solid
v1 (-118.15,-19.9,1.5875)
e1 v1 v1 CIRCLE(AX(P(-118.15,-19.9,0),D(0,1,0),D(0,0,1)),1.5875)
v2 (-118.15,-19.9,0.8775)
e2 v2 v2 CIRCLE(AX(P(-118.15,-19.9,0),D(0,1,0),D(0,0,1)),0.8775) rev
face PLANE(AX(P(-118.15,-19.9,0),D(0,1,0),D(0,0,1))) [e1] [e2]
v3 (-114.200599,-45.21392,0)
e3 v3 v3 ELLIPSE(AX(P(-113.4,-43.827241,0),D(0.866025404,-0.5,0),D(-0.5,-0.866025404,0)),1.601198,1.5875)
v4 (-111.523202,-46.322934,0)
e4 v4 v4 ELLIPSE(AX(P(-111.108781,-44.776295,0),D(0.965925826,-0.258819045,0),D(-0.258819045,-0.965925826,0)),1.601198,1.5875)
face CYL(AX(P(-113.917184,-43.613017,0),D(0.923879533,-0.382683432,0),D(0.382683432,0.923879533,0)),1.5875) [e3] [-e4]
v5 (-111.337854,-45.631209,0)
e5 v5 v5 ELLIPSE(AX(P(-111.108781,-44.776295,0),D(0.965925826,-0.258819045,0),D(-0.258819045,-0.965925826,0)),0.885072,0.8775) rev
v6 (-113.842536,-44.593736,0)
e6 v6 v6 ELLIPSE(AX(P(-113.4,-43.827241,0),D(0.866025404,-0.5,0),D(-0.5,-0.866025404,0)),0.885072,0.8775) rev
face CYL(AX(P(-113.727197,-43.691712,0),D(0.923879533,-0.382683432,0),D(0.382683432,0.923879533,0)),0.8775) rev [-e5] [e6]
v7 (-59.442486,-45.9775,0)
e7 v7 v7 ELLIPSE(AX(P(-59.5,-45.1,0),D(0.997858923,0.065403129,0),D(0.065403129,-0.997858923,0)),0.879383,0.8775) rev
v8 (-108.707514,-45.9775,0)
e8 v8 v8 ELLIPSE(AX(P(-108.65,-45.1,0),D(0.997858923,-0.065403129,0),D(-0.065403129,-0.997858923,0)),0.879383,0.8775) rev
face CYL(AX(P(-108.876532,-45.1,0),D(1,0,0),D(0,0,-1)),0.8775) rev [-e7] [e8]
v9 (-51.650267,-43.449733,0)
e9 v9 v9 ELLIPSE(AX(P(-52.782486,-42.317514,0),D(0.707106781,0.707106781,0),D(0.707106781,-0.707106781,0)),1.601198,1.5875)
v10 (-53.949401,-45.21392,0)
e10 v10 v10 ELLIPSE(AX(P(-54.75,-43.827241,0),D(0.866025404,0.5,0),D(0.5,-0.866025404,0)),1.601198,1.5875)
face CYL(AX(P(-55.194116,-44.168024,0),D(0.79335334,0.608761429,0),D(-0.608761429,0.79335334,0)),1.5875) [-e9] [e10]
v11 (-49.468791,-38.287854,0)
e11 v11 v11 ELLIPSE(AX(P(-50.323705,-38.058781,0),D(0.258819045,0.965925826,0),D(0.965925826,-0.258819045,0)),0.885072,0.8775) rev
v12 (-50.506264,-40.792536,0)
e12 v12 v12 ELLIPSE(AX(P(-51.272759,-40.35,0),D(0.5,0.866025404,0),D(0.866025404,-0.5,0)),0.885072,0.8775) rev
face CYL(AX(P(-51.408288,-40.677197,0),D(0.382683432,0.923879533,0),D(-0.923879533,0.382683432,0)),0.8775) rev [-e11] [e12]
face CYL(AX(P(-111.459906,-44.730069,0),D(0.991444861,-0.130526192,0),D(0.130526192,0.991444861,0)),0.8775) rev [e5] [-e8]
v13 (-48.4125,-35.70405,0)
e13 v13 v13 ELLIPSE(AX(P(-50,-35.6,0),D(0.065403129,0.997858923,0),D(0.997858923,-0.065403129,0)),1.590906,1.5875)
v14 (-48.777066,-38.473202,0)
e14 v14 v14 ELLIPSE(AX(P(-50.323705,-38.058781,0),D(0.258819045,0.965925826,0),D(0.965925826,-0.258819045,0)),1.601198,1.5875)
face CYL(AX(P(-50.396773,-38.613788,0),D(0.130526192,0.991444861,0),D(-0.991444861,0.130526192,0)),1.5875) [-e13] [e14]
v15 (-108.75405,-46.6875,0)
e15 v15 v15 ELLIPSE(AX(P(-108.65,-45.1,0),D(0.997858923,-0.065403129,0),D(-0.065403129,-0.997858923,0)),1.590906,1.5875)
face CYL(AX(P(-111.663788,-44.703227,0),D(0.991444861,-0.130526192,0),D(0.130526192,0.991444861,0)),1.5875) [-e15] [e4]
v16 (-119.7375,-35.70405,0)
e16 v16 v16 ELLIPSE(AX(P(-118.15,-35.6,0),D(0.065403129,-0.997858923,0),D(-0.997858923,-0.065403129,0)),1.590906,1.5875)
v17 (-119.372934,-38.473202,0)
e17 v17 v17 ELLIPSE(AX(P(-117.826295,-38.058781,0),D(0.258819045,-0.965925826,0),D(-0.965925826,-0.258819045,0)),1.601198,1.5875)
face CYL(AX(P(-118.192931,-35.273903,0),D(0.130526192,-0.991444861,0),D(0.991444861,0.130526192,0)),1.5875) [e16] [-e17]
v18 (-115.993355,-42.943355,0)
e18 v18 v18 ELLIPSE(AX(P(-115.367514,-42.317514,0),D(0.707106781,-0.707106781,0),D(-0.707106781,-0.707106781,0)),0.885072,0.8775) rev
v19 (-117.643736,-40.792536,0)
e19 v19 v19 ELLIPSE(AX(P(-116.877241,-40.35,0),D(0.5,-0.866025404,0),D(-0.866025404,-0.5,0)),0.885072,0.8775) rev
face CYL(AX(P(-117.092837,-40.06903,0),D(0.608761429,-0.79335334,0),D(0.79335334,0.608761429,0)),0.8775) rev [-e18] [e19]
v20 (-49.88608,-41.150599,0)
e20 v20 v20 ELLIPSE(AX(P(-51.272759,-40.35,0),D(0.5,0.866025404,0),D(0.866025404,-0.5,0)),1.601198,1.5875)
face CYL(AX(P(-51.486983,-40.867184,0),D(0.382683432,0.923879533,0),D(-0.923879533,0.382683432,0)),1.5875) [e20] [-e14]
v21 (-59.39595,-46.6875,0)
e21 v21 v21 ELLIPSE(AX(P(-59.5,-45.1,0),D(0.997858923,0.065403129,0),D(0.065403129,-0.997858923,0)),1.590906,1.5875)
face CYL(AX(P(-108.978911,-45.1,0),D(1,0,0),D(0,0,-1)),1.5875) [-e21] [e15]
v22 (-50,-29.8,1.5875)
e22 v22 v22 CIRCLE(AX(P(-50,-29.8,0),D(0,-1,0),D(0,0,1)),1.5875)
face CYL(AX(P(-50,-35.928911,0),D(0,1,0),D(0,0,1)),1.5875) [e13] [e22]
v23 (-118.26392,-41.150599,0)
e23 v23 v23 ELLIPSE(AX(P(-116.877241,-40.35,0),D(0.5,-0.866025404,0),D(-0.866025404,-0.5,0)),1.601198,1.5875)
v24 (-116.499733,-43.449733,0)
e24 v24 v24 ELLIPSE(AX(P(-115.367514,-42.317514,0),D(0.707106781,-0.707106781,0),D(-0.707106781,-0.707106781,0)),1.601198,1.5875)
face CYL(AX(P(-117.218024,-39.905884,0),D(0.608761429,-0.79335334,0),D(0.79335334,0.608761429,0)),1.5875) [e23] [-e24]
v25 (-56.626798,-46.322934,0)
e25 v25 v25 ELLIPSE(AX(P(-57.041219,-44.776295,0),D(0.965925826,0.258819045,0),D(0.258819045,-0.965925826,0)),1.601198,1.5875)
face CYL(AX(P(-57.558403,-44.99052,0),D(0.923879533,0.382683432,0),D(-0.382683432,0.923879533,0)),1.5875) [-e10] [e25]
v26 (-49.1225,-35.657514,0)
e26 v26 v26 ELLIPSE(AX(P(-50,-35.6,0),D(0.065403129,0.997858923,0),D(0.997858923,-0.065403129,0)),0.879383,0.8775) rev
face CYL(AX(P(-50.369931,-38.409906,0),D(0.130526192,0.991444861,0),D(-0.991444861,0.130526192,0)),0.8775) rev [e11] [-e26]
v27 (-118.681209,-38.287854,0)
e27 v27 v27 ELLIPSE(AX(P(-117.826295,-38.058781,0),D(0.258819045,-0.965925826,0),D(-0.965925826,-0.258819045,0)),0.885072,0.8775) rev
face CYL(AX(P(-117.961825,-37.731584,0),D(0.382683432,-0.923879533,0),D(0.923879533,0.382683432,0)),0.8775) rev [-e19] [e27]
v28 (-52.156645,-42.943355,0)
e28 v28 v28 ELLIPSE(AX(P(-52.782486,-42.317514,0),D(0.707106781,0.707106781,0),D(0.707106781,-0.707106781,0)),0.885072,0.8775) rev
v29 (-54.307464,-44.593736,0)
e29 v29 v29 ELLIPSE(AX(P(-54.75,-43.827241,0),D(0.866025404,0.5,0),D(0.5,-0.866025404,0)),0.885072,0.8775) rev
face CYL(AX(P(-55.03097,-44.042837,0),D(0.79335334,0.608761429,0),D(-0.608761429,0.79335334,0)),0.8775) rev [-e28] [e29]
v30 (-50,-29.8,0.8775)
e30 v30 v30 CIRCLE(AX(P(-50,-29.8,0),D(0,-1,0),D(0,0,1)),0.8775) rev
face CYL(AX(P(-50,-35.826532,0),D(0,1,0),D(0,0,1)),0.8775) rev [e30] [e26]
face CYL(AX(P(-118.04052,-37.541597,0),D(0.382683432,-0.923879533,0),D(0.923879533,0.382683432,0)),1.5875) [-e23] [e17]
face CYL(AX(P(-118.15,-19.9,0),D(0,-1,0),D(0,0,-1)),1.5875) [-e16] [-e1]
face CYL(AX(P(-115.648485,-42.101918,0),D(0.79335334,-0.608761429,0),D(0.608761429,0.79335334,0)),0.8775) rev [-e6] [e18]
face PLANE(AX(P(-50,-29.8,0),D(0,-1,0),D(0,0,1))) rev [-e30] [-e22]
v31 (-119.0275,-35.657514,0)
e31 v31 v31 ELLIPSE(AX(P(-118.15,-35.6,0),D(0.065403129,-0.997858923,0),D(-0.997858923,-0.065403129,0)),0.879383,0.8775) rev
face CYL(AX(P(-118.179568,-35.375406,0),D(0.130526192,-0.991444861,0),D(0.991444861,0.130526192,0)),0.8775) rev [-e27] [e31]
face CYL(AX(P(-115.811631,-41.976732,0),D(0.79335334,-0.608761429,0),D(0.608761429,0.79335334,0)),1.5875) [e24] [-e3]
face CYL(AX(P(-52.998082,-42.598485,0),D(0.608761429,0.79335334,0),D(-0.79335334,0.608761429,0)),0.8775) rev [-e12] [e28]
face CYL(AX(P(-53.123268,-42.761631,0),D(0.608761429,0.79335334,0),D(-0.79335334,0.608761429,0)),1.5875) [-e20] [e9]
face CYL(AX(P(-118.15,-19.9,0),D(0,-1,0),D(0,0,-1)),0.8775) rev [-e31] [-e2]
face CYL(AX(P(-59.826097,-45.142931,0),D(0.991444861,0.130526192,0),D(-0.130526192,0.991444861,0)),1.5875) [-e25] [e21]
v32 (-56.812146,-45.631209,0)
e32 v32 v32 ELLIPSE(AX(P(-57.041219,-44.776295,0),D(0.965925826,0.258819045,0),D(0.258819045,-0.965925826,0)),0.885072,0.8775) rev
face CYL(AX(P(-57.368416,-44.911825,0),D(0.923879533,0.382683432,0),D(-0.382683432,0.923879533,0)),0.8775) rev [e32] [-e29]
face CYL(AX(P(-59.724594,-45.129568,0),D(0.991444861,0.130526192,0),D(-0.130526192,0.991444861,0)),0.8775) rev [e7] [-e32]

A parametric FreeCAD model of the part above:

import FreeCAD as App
import Part
import Sketcher
from FreeCAD import Vector
Q = App.Units.Quantity

doc = App.newDocument("Part")
body = doc.addObject("PartDesign::Body", "Body")

# Sketch on XZ plane
sketch1 = doc.addObject("Sketcher::SketchObject", "Sketch")
body.addObject(sketch1)
sketch1.AttachmentSupport = (doc.XZ_Plane, [""])
sketch1.MapMode = "FlatFace"
sketch1.AttachmentOffset = App.Placement(Vector(0, 0, 19.9), App.Rotation())
sketch1.addGeometry([
    Part.Circle(Vector(-118.2, 0, 0), Vector(0, 0, 1), 1.6),
    Part.Circle(Vector(-118.2, 0, 0), Vector(0, 0, 1), 0.9),
], False)
sketch1.addConstraint([
    Sketcher.Constraint("Coincident", 1, 3, 0, 3),
    Sketcher.Constraint("PointOnObject", 0, 3, -1),
    Sketcher.Constraint("Diameter", 0, 3.175),
    Sketcher.Constraint("Diameter", 1, 1.755),
    Sketcher.Constraint("DistanceX", 0, 3, -1, 1, 118.15),
])

# Sketch on XY plane
sketch2 = doc.addObject("Sketcher::SketchObject", "Sketch001")
body.addObject(sketch2)
sketch2.AttachmentSupport = (doc.XY_Plane, [""])
sketch2.MapMode = "FlatFace"
sketch2.addGeometry([
    Part.LineSegment(Vector(-118.2, -19.9, 0), Vector(-118.2, -35.6, 0)),  # 0
    Part.LineSegment(Vector(-118.2, -35.6, 0), Vector(-117.8, -38.1, 0)),  # 1
    Part.LineSegment(Vector(-117.8, -38.1, 0), Vector(-116.9, -40.4, 0)),  # 2
    Part.LineSegment(Vector(-116.9, -40.4, 0), Vector(-115.4, -42.3, 0)),  # 3
    Part.LineSegment(Vector(-115.4, -42.3, 0), Vector(-113.4, -43.8, 0)),  # 4
    Part.LineSegment(Vector(-113.4, -43.8, 0), Vector(-111.1, -44.8, 0)),  # 5
    Part.LineSegment(Vector(-111.1, -44.8, 0), Vector(-108.7, -45.1, 0)),  # 6
    Part.LineSegment(Vector(-108.7, -45.1, 0), Vector(-59.5, -45.1, 0)),  # 7
    Part.LineSegment(Vector(-59.5, -45.1, 0), Vector(-57, -44.8, 0)),  # 8
    Part.LineSegment(Vector(-57, -44.8, 0), Vector(-54.8, -43.8, 0)),  # 9
    Part.LineSegment(Vector(-54.8, -43.8, 0), Vector(-52.8, -42.3, 0)),  # 10
    Part.LineSegment(Vector(-52.8, -42.3, 0), Vector(-51.3, -40.4, 0)),  # 11
    Part.LineSegment(Vector(-51.3, -40.4, 0), Vector(-50.3, -38.1, 0)),  # 12
    Part.LineSegment(Vector(-50.3, -38.1, 0), Vector(-50, -35.6, 0)),  # 13
    Part.LineSegment(Vector(-50, -35.6, 0), Vector(-50, -29.8, 0)),  # 14
], False)
sketch2.addConstraint([
    Sketcher.Constraint("Coincident", 0, 2, 1, 1),
    Sketcher.Constraint("Coincident", 1, 2, 2, 1),
    Sketcher.Constraint("Coincident", 2, 2, 3, 1),
    Sketcher.Constraint("Coincident", 3, 2, 4, 1),
    Sketcher.Constraint("Coincident", 4, 2, 5, 1),
    Sketcher.Constraint("Coincident", 5, 2, 6, 1),
    Sketcher.Constraint("Coincident", 6, 2, 7, 1),
    Sketcher.Constraint("Coincident", 7, 2, 8, 1),
    Sketcher.Constraint("Coincident", 8, 2, 9, 1),
    Sketcher.Constraint("Coincident", 9, 2, 10, 1),
    Sketcher.Constraint("Coincident", 10, 2, 11, 1),
    Sketcher.Constraint("Coincident", 11, 2, 12, 1),
    Sketcher.Constraint("Coincident", 12, 2, 13, 1),
    Sketcher.Constraint("Coincident", 13, 2, 14, 1),
    Sketcher.Constraint("Vertical", 0),
    Sketcher.Constraint("Horizontal", 7),
    Sketcher.Constraint("Vertical", 14),
    Sketcher.Constraint("Perpendicular", 1, 8),
    Sketcher.Constraint("Perpendicular", 2, 9),
    Sketcher.Constraint("Perpendicular", 3, 10),
    Sketcher.Constraint("Perpendicular", 4, 11),
    Sketcher.Constraint("Perpendicular", 5, 12),
    Sketcher.Constraint("Perpendicular", 6, 13),
    Sketcher.Constraint("Horizontal", 5, 2, 8, 2),
    Sketcher.Constraint("Horizontal", 4, 2, 9, 2),
    Sketcher.Constraint("Horizontal", 3, 2, 10, 2),
    Sketcher.Constraint("Horizontal", 2, 2, 11, 2),
    Sketcher.Constraint("Horizontal", 1, 2, 12, 2),
    Sketcher.Constraint("Horizontal", 0, 2, 13, 2),
    Sketcher.Constraint("Equal", 1, 2),
    Sketcher.Constraint("Equal", 2, 3),
    Sketcher.Constraint("Equal", 3, 4),
    Sketcher.Constraint("Equal", 4, 5),
    Sketcher.Constraint("Equal", 5, 6),
    Sketcher.Constraint("Equal", 6, 8),
    Sketcher.Constraint("Equal", 8, 9),
    Sketcher.Constraint("Equal", 9, 10),
    Sketcher.Constraint("DistanceY", 0, 2, 0, 1, 15.7),
    Sketcher.Constraint("DistanceY", 14, 1, 14, 2, 5.8),
    Sketcher.Constraint("DistanceX", 13, 2, -1, 1, 50.0),
    Sketcher.Constraint("Angle", 1, Q("-82.5 deg")),
    Sketcher.Constraint("Angle", 2, Q("-67.5 deg")),
    Sketcher.Constraint("Angle", 3, Q("-52.5 deg")),
    Sketcher.Constraint("DistanceX", 7, 1, 7, 2, 49.15),
    Sketcher.Constraint("DistanceY", 0, 1, -1, 1, 19.9),
    Sketcher.Constraint("DistanceX", 4, 2, -1, 1, 113.4),
])
doc.recompute()

additivepipe = doc.addObject("PartDesign::AdditivePipe", "AdditivePipe")
body.addObject(additivepipe)
additivepipe.Profile = sketch1
additivepipe.Spine = (sketch2, ["Edge1", "Edge2", "Edge3", "Edge4", "Edge5", "Edge6", "Edge7", "Edge8", "Edge9", "Edge10", "Edge11", "Edge12", "Edge13", "Edge14", "Edge15"])
additivepipe.Transition = "Right corner"

doc.recompute()
